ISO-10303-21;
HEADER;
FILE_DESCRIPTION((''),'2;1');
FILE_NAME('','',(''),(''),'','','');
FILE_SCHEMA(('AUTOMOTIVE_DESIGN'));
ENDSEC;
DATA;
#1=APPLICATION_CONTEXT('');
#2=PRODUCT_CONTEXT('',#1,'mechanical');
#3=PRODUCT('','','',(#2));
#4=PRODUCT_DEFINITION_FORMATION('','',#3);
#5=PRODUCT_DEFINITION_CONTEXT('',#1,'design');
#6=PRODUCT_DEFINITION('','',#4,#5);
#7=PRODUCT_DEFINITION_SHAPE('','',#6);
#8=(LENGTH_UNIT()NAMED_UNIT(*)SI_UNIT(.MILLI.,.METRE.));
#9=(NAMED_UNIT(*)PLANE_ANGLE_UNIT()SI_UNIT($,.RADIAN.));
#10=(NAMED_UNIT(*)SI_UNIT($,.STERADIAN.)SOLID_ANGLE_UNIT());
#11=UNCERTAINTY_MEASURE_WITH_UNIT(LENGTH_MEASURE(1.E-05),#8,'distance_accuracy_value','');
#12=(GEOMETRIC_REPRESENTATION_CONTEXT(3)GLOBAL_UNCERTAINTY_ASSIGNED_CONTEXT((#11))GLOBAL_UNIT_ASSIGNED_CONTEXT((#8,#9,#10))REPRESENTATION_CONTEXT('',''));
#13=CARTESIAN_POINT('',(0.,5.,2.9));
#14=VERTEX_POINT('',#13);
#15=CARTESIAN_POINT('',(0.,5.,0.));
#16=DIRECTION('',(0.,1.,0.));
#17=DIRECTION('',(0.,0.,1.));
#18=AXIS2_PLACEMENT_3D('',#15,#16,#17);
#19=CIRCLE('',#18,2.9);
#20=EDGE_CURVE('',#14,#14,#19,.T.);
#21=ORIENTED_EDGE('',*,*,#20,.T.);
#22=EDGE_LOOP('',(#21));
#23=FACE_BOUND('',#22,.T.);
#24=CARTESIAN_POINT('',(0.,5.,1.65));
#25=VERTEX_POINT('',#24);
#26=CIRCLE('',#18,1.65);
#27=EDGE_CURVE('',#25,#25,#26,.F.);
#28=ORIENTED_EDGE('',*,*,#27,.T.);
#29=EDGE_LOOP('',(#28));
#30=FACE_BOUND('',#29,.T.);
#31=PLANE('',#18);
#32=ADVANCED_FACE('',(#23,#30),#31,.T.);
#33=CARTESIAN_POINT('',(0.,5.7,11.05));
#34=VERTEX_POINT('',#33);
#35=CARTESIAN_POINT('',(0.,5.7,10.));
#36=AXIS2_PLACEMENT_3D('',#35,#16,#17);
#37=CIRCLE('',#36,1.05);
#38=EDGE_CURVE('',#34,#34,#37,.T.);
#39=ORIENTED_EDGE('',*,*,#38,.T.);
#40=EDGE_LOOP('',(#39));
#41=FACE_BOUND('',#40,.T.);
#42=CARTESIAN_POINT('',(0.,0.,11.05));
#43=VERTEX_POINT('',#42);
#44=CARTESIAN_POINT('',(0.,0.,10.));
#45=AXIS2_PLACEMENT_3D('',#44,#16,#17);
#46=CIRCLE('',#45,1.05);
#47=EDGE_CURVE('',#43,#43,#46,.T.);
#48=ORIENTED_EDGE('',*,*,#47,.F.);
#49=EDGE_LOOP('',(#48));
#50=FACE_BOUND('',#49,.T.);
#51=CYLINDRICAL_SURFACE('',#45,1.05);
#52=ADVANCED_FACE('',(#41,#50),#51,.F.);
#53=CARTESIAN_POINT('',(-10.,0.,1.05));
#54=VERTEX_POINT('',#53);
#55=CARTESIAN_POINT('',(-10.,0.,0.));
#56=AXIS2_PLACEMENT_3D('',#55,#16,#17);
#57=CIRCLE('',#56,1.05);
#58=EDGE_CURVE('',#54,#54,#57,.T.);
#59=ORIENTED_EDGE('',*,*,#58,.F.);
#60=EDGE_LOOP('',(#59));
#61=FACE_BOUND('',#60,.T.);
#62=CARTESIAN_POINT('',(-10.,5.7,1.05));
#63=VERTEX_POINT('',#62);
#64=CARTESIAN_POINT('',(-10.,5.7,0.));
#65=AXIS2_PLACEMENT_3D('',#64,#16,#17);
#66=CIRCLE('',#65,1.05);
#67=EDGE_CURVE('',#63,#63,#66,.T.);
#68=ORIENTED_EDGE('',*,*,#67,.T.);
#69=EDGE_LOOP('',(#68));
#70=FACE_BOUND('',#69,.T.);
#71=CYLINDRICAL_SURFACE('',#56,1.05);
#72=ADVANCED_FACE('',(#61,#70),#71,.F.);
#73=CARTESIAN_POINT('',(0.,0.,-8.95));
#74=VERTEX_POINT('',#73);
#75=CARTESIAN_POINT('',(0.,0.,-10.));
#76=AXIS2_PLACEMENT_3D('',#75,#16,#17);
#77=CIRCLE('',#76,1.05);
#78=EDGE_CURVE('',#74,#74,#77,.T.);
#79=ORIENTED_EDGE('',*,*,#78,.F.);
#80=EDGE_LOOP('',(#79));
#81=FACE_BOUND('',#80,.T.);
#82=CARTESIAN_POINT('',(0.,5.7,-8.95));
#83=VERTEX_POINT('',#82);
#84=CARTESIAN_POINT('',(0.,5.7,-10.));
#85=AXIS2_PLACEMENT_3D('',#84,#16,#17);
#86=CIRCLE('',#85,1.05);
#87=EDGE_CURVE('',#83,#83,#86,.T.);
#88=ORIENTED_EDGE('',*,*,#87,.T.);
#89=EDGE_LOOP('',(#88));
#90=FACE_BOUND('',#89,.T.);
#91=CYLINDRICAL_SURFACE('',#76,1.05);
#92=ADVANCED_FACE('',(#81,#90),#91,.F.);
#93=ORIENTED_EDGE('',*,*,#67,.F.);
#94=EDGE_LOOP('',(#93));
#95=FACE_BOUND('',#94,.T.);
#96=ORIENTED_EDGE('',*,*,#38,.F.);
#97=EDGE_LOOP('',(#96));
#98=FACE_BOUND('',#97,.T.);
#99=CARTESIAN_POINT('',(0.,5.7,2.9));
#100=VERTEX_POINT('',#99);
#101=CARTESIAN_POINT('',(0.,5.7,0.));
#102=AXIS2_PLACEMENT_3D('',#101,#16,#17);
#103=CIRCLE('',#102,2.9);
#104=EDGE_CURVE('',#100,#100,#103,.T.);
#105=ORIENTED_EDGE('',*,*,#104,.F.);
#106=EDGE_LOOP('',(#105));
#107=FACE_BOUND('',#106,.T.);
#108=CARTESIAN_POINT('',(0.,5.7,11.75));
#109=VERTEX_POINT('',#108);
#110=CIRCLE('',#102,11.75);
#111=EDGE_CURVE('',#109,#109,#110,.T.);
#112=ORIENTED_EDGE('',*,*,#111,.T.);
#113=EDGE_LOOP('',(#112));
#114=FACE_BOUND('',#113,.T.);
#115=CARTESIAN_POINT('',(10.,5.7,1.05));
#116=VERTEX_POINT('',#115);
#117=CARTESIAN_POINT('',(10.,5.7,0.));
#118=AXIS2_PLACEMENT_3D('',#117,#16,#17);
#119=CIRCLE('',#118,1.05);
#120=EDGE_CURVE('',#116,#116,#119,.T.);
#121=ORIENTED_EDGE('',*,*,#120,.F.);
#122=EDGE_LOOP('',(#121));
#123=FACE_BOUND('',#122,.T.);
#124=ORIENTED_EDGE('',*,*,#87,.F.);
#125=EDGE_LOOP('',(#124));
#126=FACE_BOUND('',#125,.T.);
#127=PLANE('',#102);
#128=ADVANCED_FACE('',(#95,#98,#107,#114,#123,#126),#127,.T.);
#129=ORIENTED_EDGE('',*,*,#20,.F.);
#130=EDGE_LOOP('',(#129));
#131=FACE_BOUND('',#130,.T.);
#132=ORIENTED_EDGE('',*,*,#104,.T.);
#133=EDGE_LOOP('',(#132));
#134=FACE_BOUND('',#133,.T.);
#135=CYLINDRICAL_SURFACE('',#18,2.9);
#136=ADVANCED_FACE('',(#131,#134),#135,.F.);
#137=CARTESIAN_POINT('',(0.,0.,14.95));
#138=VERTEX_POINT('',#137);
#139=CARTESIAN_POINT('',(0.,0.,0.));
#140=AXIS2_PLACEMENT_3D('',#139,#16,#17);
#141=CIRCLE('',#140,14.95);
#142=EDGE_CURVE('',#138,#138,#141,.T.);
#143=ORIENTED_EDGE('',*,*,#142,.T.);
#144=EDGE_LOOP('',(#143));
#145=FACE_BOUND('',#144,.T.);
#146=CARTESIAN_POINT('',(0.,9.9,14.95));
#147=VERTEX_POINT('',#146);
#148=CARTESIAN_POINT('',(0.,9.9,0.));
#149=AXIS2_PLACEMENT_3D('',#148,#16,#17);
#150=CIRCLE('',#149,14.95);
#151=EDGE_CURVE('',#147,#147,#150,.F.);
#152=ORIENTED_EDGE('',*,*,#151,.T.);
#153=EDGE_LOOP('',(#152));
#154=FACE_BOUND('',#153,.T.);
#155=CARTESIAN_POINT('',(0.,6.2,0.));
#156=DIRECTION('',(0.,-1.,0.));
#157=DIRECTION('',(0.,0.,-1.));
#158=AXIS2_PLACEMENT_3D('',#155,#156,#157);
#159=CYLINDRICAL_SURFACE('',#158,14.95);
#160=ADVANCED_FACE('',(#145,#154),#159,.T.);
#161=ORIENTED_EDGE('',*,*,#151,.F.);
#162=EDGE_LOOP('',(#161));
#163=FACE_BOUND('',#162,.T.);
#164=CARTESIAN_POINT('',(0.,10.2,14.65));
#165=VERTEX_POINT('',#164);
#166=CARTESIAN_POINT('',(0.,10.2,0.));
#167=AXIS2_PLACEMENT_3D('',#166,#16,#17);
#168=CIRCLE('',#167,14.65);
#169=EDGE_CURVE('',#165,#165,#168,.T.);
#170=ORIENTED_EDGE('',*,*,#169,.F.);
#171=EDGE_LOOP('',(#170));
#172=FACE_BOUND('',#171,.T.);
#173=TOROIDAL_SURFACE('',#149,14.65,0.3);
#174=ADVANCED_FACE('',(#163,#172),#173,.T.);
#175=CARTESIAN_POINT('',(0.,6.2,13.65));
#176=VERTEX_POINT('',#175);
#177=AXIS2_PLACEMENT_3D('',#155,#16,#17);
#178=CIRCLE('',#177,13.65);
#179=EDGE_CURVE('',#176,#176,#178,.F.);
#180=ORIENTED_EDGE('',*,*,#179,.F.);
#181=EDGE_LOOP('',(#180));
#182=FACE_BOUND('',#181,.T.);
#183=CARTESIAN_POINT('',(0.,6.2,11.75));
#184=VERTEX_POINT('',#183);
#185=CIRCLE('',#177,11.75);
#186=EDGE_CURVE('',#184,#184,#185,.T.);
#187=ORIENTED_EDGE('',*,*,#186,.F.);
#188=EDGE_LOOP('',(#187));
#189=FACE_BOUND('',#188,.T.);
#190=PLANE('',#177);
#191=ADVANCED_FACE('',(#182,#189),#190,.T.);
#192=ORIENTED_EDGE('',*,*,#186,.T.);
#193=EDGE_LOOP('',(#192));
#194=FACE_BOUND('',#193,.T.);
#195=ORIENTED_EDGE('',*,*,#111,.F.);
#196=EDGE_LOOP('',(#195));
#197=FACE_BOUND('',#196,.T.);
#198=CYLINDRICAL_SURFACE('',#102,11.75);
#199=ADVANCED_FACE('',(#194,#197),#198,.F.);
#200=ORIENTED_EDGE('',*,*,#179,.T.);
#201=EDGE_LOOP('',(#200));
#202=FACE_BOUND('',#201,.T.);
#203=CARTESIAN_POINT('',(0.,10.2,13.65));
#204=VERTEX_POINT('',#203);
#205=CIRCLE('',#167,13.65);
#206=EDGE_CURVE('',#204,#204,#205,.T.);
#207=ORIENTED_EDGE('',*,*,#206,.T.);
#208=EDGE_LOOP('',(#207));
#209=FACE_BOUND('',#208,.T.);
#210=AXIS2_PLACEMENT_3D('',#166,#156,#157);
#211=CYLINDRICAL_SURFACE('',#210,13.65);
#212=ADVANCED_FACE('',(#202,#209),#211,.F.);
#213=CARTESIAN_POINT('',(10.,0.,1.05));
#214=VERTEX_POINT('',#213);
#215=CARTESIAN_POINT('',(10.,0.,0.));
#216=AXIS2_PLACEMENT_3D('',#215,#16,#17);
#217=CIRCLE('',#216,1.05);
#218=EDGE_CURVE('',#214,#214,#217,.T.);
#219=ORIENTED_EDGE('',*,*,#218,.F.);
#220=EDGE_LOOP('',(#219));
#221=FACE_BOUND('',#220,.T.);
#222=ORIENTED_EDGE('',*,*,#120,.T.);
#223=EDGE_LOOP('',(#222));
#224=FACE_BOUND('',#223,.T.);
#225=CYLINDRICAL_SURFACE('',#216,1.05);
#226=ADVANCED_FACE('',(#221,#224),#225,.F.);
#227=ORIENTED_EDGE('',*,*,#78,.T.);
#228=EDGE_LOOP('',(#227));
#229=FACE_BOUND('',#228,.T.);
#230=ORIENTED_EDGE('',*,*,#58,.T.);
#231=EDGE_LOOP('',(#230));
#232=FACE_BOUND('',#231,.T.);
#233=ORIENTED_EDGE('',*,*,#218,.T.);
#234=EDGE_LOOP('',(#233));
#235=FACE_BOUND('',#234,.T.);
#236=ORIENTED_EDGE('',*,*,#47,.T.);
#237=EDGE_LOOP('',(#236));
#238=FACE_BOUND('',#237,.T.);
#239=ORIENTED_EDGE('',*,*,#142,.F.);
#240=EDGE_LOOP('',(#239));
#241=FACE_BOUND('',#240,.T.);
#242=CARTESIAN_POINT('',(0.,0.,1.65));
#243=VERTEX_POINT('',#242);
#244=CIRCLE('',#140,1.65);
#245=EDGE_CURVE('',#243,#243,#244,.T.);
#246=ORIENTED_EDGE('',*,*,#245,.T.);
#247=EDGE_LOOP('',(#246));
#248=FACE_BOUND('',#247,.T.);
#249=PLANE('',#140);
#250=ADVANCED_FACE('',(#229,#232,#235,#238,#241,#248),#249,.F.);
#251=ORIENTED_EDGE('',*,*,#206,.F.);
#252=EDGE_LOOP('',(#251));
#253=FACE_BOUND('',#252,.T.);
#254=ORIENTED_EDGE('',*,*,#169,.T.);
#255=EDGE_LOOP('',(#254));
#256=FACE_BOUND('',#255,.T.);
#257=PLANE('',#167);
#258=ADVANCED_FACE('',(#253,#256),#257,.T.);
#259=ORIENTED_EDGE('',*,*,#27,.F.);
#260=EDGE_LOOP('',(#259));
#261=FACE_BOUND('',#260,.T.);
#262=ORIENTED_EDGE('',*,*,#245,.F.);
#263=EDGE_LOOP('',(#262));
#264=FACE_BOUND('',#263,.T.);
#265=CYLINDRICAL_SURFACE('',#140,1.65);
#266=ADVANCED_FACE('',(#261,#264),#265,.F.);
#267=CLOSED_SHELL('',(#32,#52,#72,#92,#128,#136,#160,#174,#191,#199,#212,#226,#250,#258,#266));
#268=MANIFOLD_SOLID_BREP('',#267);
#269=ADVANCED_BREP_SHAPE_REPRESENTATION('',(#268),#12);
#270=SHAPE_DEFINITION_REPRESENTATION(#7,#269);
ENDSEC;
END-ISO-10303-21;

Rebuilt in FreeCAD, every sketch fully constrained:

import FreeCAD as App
import Part
import Sketcher
from FreeCAD import Vector


def edges_at(feature, points):
    """Names of the edges that pass closest to the given points."""
    edges = feature.Shape.Edges
    near = lambda p: min(range(len(edges)), key=lambda i: edges[i].distToShape(Part.Vertex(*p))[0])
    return sorted({f"Edge{near(p) + 1}" for p in points})

doc = App.newDocument("Part")
body = doc.addObject("PartDesign::Body", "Body")

sketch1 = body.newObject("Sketcher::SketchObject", "Sketch")
sketch1.AttachmentSupport = (doc.getObject("XZ_Plane"), [""])
sketch1.MapMode = "FlatFace"
sketch1.addGeometry(Part.Circle(Vector(0, 0, 0), Vector(0, 0, 1), 15), False)
sketch1.addConstraint(Sketcher.Constraint("Coincident", 0, 3, -1, 1))
sketch1.addConstraint(Sketcher.Constraint("Diameter", 0, 29.9))
pad1 = body.newObject("PartDesign::Pad", "Pad")
pad1.Profile = sketch1
pad1.Length = 6.2
pad1.Reversed = True

sketch2 = body.newObject("Sketcher::SketchObject", "Sketch001")
sketch2.AttachmentSupport = (doc.getObject("XZ_Plane"), [""])
sketch2.MapMode = "FlatFace"
sketch2.AttachmentOffset = App.Placement(Vector(0, 0, -6.2), App.Rotation())
sketch2.addGeometry(Part.Circle(Vector(0, 0, 0), Vector(0, 0, 1), 12), False)
sketch2.addConstraint(Sketcher.Constraint("Coincident", 0, 3, -1, 1))
sketch2.addConstraint(Sketcher.Constraint("Diameter", 0, 23.5))
pocket1 = body.newObject("PartDesign::Pocket", "Pocket")
pocket1.Profile = sketch2
pocket1.Length = 0.5
pocket1.Reversed = True

sketch3 = body.newObject("Sketcher::SketchObject", "Sketch002")
sketch3.AttachmentSupport = (doc.getObject("XZ_Plane"), [""])
sketch3.MapMode = "FlatFace"
sketch3.AttachmentOffset = App.Placement(Vector(0, 0, -6.2), App.Rotation())
sketch3.addGeometry(Part.Circle(Vector(0, 0, 0), Vector(0, 0, 1), 15), False)
sketch3.addGeometry(Part.Circle(Vector(0, 0, 0), Vector(0, 0, 1), 14), False)
sketch3.addConstraint(Sketcher.Constraint("Coincident", 0, 3, -1, 1))
sketch3.addConstraint(Sketcher.Constraint("Coincident", 1, 3, -1, 1))
sketch3.addConstraint(Sketcher.Constraint("Diameter", 0, 29.9))
sketch3.addConstraint(Sketcher.Constraint("Diameter", 1, 27.3))
pad2 = body.newObject("PartDesign::Pad", "Pad001")
pad2.Profile = sketch3
pad2.Length = 4
pad2.Reversed = True
doc.recompute()

fillet = body.newObject("PartDesign::Fillet", "Fillet")
fillet.Base = (pad2, edges_at(pad2, [(-14.95, 10.2, 0)]))
fillet.Radius = 0.3

sketch4 = body.newObject("Sketcher::SketchObject", "Sketch003")
sketch4.AttachmentSupport = (doc.getObject("XZ_Plane"), [""])
sketch4.MapMode = "FlatFace"
sketch4.AttachmentOffset = App.Placement(Vector(0, 0, -5.7), App.Rotation())
sketch4.addGeometry(Part.Circle(Vector(0, 0, 0), Vector(0, 0, 1), 1.6), False)
sketch4.addConstraint(Sketcher.Constraint("Coincident", 0, 3, -1, 1))
sketch4.addConstraint(Sketcher.Constraint("Diameter", 0, 3.3))
pocket2 = body.newObject("PartDesign::Pocket", "Pocket001")
pocket2.Profile = sketch4
pocket2.Type = "ThroughAll"
pocket2.Reversed = True

sketch5 = body.newObject("Sketcher::SketchObject", "Sketch004")
sketch5.AttachmentSupport = (doc.getObject("XZ_Plane"), [""])
sketch5.MapMode = "FlatFace"
sketch5.AttachmentOffset = App.Placement(Vector(0, 0, -5.7), App.Rotation())
sketch5.addGeometry(Part.Circle(Vector(0, 0, 0), Vector(0, 0, 1), 2.9), False)
sketch5.addConstraint(Sketcher.Constraint("Coincident", 0, 3, -1, 1))
sketch5.addConstraint(Sketcher.Constraint("Diameter", 0, 5.8))
pocket3 = body.newObject("PartDesign::Pocket", "Pocket002")
pocket3.Profile = sketch5
pocket3.Length = 0.7
pocket3.Reversed = True

sketch6 = body.newObject("Sketcher::SketchObject", "Sketch005")
sketch6.AttachmentSupport = (doc.getObject("XZ_Plane"), [""])
sketch6.MapMode = "FlatFace"
sketch6.AttachmentOffset = App.Placement(Vector(0, 0, -5.7), App.Rotation())
sketch6.addGeometry(Part.Circle(Vector(0, -10, 0), Vector(0, 0, 1), 1.1), False)
sketch6.addGeometry(Part.Circle(Vector(10, 0, 0), Vector(0, 0, 1), 1.1), False)
sketch6.addGeometry(Part.Circle(Vector(0, 10, 0), Vector(0, 0, 1), 1.1), False)
sketch6.addGeometry(Part.Circle(Vector(-10, 0, 0), Vector(0, 0, 1), 1.1), False)
sketch6.addConstraint(Sketcher.Constraint("Equal", 0, 1))
sketch6.addConstraint(Sketcher.Constraint("Equal", 1, 2))
sketch6.addConstraint(Sketcher.Constraint("Equal", 2, 3))
sketch6.addConstraint(Sketcher.Constraint("Symmetric", 0, 3, 2, 3, -1, 1))
sketch6.addConstraint(Sketcher.Constraint("Symmetric", 1, 3, 3, 3, -1, 1))
sketch6.addConstraint(Sketcher.Constraint("PointOnObject", 0, 3, -2))
sketch6.addConstraint(Sketcher.Constraint("PointOnObject", 1, 3, -1))
sketch6.addConstraint(Sketcher.Constraint("Diameter", 0, 2.1))
sketch6.addConstraint(Sketcher.Constraint("DistanceY", 0, 3, -1, 1, 10.0))
sketch6.addConstraint(Sketcher.Constraint("DistanceX", -1, 1, 1, 3, 10.0))
pocket4 = body.newObject("PartDesign::Pocket", "Pocket003")
pocket4.Profile = sketch6
pocket4.Type = "ThroughAll"
pocket4.Reversed = True

doc.recompute()
